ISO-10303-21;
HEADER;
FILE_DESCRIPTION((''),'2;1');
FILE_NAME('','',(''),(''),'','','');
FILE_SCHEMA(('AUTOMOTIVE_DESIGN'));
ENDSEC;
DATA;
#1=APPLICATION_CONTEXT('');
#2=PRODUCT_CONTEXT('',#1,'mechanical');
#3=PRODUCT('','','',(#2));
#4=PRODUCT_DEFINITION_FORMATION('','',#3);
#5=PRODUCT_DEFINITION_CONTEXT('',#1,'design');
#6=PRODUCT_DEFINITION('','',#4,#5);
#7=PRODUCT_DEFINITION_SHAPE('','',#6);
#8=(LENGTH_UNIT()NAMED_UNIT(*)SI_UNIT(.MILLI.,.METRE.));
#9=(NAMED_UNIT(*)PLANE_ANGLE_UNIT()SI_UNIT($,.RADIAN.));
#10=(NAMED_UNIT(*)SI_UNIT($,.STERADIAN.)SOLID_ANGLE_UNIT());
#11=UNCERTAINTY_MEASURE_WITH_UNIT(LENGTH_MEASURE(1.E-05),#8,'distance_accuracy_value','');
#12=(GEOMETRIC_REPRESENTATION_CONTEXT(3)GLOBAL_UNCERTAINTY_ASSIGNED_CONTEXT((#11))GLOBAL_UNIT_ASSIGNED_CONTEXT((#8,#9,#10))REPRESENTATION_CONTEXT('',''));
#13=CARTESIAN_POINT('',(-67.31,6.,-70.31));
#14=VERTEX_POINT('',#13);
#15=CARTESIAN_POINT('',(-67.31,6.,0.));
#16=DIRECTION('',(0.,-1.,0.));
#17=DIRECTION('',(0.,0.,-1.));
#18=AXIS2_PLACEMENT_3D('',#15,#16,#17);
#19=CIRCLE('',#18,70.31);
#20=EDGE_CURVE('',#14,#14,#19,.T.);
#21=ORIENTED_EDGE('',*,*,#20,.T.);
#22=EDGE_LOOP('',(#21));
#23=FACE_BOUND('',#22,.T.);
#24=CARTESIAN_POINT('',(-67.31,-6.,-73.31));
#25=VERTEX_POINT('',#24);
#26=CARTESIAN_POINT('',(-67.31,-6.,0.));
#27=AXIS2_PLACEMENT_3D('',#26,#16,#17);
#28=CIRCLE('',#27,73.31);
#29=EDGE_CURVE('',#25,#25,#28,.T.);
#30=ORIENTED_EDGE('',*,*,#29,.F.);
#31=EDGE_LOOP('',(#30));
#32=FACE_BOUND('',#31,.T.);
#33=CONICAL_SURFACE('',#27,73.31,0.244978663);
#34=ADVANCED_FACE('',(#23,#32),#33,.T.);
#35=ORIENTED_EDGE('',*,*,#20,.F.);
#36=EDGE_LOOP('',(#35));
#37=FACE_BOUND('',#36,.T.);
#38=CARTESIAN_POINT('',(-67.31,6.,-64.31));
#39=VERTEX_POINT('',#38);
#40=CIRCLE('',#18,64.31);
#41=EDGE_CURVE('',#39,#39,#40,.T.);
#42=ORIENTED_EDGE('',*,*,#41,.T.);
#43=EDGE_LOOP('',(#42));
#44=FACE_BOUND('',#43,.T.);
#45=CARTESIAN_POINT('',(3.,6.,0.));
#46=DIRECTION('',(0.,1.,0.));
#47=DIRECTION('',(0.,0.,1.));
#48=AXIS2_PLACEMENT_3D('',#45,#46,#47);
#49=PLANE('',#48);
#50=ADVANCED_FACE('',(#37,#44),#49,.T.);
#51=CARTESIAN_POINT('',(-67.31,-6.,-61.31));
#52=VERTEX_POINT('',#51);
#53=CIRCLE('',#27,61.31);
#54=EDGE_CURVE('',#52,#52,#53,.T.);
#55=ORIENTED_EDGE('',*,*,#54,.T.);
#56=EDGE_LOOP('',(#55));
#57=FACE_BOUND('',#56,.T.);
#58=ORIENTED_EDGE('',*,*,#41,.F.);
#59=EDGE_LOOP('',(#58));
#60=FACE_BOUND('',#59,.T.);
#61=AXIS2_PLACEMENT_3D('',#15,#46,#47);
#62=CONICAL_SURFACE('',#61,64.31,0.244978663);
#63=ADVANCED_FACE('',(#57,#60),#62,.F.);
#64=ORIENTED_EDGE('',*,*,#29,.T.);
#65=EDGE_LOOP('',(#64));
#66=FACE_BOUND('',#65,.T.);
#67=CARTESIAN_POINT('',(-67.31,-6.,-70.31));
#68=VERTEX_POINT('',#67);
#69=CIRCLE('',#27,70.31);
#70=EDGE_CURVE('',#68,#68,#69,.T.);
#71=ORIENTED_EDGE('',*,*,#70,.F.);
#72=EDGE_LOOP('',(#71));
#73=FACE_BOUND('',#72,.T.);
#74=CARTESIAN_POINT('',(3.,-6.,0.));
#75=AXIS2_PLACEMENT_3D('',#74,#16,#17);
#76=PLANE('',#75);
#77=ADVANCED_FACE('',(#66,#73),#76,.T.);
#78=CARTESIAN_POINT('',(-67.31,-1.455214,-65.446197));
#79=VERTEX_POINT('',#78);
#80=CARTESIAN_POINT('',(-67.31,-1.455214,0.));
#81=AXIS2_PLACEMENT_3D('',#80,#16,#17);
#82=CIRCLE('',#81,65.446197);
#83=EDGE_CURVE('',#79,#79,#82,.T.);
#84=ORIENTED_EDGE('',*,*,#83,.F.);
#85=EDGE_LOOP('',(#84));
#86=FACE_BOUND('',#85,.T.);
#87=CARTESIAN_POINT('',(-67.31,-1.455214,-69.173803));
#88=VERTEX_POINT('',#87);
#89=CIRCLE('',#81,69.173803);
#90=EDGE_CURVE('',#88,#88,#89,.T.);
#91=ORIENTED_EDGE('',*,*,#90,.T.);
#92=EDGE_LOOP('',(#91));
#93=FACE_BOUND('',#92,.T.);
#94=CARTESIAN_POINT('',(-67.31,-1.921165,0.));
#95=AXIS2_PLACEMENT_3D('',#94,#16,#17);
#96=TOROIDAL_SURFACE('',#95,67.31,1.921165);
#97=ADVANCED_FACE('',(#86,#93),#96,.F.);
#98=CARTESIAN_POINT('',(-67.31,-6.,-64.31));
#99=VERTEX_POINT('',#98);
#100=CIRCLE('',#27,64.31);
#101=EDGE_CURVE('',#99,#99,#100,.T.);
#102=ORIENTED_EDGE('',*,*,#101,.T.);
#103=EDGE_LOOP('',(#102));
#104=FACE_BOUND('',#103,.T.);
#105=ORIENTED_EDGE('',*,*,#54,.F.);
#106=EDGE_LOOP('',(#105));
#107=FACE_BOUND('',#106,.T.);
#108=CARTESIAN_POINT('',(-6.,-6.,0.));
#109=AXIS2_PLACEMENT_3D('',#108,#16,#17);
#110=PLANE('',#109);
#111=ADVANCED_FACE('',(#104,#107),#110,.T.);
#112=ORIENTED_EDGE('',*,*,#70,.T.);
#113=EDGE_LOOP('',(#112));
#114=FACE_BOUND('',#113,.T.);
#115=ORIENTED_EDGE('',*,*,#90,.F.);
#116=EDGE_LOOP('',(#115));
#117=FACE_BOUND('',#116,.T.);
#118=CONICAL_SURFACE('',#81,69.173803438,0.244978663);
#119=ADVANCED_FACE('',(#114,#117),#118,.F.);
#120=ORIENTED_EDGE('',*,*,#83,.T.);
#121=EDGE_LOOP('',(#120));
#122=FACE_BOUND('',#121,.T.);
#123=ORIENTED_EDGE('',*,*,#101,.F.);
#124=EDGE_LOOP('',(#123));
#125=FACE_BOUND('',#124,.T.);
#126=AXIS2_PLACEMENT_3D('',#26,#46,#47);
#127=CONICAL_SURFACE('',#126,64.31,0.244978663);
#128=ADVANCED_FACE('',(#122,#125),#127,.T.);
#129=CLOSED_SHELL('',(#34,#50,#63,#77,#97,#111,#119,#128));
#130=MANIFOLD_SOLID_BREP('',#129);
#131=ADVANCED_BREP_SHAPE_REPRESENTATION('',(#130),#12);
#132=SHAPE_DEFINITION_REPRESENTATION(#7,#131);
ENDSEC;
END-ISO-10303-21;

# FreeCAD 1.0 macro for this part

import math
import FreeCAD as App
import Part
import Sketcher
Q = App.Units.Quantity

doc = App.newDocument("Part")
body = doc.addObject("PartDesign::Body", "Body")

sketch1 = body.newObject("Sketcher::SketchObject", "Sketch")
sketch1.AttachmentSupport = (doc.getObject("XY_Plane"), [""])
sketch1.MapMode = "FlatFace"
sketch1.addGeometry(Part.LineSegment(App.Vector(3, 6, 0), App.Vector(-3, 6, 0)), False)
sketch1.addGeometry(Part.LineSegment(App.Vector(-3, 6, 0), App.Vector(-6, -6, 0)), False)
sketch1.addGeometry(Part.LineSegment(App.Vector(-6, -6, 0), App.Vector(-3, -6, 0)), False)
sketch1.addGeometry(Part.LineSegment(App.Vector(-3, -6, 0), App.Vector(-1.9, -1.5, 0)), False)
sketch1.addGeometry(Part.ArcOfCircle(Part.Circle(App.Vector(0, -1.9, 0), App.Vector(0, 0, 1), 1.9), math.radians(14), math.radians(166)), False)
sketch1.addGeometry(Part.LineSegment(App.Vector(1.9, -1.5, 0), App.Vector(3, -6, 0)), False)
sketch1.addGeometry(Part.LineSegment(App.Vector(3, -6, 0), App.Vector(6, -6, 0)), False)
sketch1.addGeometry(Part.LineSegment(App.Vector(6, -6, 0), App.Vector(3, 6, 0)), False)
sketch1.addGeometry(Part.LineSegment(App.Vector(-67.3, -6, 0), App.Vector(-67.3, 6, 0)), True)
sketch1.addConstraint(Sketcher.Constraint("Coincident", 0, 2, 1, 1))
sketch1.addConstraint(Sketcher.Constraint("Coincident", 1, 2, 2, 1))
sketch1.addConstraint(Sketcher.Constraint("Coincident", 2, 2, 3, 1))
sketch1.addConstraint(Sketcher.Constraint("Tangent", 3, 2, 4, 2))
sketch1.addConstraint(Sketcher.Constraint("Tangent", 4, 1, 5, 1))
sketch1.addConstraint(Sketcher.Constraint("Coincident", 5, 2, 6, 1))
sketch1.addConstraint(Sketcher.Constraint("Coincident", 6, 2, 7, 1))
sketch1.addConstraint(Sketcher.Constraint("Coincident", 7, 2, 0, 1))
sketch1.addConstraint(Sketcher.Constraint("Horizontal", 0))
sketch1.addConstraint(Sketcher.Constraint("Horizontal", 2))
sketch1.addConstraint(Sketcher.Constraint("Horizontal", 6))
sketch1.addConstraint(Sketcher.Constraint("Vertical", 8))
sketch1.addConstraint(Sketcher.Constraint("Symmetric", 0, 2, 5, 2, -1, 1))
sketch1.addConstraint(Sketcher.Constraint("Symmetric", 2, 2, 7, 2, -1, 1))
sketch1.addConstraint(Sketcher.Constraint("Symmetric", 3, 2, 4, 1, -2))
sketch1.addConstraint(Sketcher.Constraint("Parallel", 1, 3))
sketch1.addConstraint(Sketcher.Constraint("Parallel", 5, 7))
sketch1.addConstraint(Sketcher.Constraint("Horizontal", 6, 2, 8, 1))
sketch1.addConstraint(Sketcher.Constraint("Horizontal", 7, 2, 8, 2))
sketch1.addConstraint(Sketcher.Constraint("DistanceX", 0, 2, 0, 1, Q("6 mm")))
sketch1.addConstraint(Sketcher.Constraint("DistanceX", 2, 1, 2, 2, Q("3 mm")))
sketch1.addConstraint(Sketcher.Constraint("DistanceY", 8, 1, 8, 2, Q("12 mm")))
sketch1.addConstraint(Sketcher.Constraint("DistanceX", 8, 1, -1, 1, Q("67.31 mm")))
sketch1.addConstraint(Sketcher.Constraint("Radius", 4, Q("1.921165 mm")))
revolution = body.newObject("PartDesign::Revolution", "Revolution")
revolution.Profile = sketch1
revolution.ReferenceAxis = (sketch1, ["Axis0"])
revolution.Angle = 360

doc.recompute()
